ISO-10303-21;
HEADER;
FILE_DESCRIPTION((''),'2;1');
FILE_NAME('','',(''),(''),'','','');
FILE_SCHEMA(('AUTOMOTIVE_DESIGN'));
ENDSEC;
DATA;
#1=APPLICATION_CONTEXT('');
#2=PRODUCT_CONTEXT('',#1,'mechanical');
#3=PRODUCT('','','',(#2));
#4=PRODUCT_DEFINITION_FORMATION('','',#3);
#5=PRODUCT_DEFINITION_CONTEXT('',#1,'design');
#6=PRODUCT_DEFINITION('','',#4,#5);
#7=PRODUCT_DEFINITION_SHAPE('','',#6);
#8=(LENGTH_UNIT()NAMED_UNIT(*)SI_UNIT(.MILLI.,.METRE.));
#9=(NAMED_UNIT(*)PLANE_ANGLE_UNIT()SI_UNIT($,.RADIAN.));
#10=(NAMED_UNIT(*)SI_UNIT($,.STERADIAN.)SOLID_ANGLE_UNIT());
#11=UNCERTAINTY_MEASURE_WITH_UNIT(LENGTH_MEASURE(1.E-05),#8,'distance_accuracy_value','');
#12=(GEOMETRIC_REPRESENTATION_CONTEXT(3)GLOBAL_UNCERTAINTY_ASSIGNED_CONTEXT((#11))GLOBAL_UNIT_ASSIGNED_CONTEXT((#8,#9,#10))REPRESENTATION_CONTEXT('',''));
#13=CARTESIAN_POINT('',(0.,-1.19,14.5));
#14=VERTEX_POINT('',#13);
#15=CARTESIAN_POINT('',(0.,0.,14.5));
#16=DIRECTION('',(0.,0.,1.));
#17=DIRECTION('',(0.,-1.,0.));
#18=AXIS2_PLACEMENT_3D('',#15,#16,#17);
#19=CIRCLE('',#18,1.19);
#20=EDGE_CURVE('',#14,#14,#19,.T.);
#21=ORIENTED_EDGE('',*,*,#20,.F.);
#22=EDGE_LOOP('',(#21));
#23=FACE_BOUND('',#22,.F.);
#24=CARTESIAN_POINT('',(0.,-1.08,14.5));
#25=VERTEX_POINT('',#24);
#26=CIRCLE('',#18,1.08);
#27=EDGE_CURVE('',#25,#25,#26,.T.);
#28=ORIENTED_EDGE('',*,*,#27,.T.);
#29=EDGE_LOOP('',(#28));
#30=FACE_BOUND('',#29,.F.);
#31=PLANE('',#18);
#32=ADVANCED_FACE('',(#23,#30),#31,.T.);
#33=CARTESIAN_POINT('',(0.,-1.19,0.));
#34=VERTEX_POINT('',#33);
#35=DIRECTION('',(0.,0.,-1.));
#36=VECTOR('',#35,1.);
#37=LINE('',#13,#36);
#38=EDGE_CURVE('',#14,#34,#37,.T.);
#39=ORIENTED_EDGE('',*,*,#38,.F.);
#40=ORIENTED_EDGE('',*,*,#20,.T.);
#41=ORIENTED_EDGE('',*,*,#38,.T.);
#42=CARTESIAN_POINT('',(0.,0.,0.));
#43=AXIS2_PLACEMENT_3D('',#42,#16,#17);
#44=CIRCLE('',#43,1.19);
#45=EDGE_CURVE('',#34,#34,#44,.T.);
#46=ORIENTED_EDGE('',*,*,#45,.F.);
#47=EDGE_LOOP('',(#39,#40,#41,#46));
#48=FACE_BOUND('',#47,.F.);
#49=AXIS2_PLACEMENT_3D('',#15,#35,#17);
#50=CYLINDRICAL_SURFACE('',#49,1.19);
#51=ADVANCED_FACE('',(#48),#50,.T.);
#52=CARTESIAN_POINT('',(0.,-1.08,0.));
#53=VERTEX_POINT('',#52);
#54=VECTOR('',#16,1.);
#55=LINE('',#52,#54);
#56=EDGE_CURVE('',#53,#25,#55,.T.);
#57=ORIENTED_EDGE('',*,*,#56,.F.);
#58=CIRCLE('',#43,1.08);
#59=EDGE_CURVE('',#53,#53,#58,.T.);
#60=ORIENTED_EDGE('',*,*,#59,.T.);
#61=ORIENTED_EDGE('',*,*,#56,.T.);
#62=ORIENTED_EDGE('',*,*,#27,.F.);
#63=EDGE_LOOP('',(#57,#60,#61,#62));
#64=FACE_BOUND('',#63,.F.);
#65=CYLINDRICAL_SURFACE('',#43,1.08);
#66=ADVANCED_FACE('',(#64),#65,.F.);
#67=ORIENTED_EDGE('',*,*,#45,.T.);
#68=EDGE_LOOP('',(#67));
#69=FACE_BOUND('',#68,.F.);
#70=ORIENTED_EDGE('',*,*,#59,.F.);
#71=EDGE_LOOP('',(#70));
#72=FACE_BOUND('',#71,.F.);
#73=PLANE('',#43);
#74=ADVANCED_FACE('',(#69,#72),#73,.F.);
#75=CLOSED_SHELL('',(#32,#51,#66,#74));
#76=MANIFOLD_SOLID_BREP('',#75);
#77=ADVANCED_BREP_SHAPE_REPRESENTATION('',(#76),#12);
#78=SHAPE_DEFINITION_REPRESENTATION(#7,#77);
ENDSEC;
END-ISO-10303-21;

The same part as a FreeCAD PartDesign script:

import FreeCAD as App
import Part
import Sketcher
from FreeCAD import Vector
Q = App.Units.Quantity


def add_polygon(sketch, points):
    """Adds a closed chain of lines whose ends are joined by coincident constraints."""
    first, n = sketch.GeometryCount, len(points)
    for a, b in zip(points, points[1:] + points[:1]):
        sketch.addGeometry(Part.LineSegment(App.Vector(*a, 0), App.Vector(*b, 0)), False)
    for i in range(n):
        sketch.addConstraint(Sketcher.Constraint("Coincident", first + i, 2, first + (i + 1) % n, 1))

doc = App.newDocument("Part")
body = doc.addObject("PartDesign::Body", "Body")

# Sketch on YZ plane
sketch1 = doc.addObject("Sketcher::SketchObject", "Sketch")
body.addObject(sketch1)
sketch1.AttachmentSupport = (doc.YZ_Plane, [""])
sketch1.MapMode = "FlatFace"
add_polygon(sketch1, [(-1.19, 0), (-1.08, 0), (-1.08, 14.5), (-1.19, 14.5)])  # lines 0-3
sketch1.addConstraint([
    Sketcher.Constraint("Horizontal", 0),
    Sketcher.Constraint("Vertical", 1),
    Sketcher.Constraint("Horizontal", 2),
    Sketcher.Constraint("Vertical", 3),
    Sketcher.Constraint("PointOnObject", 0, 2, -1),
    Sketcher.Constraint("DistanceY", 1, 1, 1, 2, Q("14.5 mm")),
    Sketcher.Constraint("DistanceX", 0, 1, 0, 2, Q("0.11 mm")),
    Sketcher.Constraint("DistanceX", 0, 2, -1, 1, Q("1.08 mm")),
])
revolution = doc.addObject("PartDesign::Revolution", "Revolution")
body.addObject(revolution)
revolution.Profile = sketch1
revolution.ReferenceAxis = (sketch1, ["V_Axis"])
revolution.Angle = 360

doc.recompute()
